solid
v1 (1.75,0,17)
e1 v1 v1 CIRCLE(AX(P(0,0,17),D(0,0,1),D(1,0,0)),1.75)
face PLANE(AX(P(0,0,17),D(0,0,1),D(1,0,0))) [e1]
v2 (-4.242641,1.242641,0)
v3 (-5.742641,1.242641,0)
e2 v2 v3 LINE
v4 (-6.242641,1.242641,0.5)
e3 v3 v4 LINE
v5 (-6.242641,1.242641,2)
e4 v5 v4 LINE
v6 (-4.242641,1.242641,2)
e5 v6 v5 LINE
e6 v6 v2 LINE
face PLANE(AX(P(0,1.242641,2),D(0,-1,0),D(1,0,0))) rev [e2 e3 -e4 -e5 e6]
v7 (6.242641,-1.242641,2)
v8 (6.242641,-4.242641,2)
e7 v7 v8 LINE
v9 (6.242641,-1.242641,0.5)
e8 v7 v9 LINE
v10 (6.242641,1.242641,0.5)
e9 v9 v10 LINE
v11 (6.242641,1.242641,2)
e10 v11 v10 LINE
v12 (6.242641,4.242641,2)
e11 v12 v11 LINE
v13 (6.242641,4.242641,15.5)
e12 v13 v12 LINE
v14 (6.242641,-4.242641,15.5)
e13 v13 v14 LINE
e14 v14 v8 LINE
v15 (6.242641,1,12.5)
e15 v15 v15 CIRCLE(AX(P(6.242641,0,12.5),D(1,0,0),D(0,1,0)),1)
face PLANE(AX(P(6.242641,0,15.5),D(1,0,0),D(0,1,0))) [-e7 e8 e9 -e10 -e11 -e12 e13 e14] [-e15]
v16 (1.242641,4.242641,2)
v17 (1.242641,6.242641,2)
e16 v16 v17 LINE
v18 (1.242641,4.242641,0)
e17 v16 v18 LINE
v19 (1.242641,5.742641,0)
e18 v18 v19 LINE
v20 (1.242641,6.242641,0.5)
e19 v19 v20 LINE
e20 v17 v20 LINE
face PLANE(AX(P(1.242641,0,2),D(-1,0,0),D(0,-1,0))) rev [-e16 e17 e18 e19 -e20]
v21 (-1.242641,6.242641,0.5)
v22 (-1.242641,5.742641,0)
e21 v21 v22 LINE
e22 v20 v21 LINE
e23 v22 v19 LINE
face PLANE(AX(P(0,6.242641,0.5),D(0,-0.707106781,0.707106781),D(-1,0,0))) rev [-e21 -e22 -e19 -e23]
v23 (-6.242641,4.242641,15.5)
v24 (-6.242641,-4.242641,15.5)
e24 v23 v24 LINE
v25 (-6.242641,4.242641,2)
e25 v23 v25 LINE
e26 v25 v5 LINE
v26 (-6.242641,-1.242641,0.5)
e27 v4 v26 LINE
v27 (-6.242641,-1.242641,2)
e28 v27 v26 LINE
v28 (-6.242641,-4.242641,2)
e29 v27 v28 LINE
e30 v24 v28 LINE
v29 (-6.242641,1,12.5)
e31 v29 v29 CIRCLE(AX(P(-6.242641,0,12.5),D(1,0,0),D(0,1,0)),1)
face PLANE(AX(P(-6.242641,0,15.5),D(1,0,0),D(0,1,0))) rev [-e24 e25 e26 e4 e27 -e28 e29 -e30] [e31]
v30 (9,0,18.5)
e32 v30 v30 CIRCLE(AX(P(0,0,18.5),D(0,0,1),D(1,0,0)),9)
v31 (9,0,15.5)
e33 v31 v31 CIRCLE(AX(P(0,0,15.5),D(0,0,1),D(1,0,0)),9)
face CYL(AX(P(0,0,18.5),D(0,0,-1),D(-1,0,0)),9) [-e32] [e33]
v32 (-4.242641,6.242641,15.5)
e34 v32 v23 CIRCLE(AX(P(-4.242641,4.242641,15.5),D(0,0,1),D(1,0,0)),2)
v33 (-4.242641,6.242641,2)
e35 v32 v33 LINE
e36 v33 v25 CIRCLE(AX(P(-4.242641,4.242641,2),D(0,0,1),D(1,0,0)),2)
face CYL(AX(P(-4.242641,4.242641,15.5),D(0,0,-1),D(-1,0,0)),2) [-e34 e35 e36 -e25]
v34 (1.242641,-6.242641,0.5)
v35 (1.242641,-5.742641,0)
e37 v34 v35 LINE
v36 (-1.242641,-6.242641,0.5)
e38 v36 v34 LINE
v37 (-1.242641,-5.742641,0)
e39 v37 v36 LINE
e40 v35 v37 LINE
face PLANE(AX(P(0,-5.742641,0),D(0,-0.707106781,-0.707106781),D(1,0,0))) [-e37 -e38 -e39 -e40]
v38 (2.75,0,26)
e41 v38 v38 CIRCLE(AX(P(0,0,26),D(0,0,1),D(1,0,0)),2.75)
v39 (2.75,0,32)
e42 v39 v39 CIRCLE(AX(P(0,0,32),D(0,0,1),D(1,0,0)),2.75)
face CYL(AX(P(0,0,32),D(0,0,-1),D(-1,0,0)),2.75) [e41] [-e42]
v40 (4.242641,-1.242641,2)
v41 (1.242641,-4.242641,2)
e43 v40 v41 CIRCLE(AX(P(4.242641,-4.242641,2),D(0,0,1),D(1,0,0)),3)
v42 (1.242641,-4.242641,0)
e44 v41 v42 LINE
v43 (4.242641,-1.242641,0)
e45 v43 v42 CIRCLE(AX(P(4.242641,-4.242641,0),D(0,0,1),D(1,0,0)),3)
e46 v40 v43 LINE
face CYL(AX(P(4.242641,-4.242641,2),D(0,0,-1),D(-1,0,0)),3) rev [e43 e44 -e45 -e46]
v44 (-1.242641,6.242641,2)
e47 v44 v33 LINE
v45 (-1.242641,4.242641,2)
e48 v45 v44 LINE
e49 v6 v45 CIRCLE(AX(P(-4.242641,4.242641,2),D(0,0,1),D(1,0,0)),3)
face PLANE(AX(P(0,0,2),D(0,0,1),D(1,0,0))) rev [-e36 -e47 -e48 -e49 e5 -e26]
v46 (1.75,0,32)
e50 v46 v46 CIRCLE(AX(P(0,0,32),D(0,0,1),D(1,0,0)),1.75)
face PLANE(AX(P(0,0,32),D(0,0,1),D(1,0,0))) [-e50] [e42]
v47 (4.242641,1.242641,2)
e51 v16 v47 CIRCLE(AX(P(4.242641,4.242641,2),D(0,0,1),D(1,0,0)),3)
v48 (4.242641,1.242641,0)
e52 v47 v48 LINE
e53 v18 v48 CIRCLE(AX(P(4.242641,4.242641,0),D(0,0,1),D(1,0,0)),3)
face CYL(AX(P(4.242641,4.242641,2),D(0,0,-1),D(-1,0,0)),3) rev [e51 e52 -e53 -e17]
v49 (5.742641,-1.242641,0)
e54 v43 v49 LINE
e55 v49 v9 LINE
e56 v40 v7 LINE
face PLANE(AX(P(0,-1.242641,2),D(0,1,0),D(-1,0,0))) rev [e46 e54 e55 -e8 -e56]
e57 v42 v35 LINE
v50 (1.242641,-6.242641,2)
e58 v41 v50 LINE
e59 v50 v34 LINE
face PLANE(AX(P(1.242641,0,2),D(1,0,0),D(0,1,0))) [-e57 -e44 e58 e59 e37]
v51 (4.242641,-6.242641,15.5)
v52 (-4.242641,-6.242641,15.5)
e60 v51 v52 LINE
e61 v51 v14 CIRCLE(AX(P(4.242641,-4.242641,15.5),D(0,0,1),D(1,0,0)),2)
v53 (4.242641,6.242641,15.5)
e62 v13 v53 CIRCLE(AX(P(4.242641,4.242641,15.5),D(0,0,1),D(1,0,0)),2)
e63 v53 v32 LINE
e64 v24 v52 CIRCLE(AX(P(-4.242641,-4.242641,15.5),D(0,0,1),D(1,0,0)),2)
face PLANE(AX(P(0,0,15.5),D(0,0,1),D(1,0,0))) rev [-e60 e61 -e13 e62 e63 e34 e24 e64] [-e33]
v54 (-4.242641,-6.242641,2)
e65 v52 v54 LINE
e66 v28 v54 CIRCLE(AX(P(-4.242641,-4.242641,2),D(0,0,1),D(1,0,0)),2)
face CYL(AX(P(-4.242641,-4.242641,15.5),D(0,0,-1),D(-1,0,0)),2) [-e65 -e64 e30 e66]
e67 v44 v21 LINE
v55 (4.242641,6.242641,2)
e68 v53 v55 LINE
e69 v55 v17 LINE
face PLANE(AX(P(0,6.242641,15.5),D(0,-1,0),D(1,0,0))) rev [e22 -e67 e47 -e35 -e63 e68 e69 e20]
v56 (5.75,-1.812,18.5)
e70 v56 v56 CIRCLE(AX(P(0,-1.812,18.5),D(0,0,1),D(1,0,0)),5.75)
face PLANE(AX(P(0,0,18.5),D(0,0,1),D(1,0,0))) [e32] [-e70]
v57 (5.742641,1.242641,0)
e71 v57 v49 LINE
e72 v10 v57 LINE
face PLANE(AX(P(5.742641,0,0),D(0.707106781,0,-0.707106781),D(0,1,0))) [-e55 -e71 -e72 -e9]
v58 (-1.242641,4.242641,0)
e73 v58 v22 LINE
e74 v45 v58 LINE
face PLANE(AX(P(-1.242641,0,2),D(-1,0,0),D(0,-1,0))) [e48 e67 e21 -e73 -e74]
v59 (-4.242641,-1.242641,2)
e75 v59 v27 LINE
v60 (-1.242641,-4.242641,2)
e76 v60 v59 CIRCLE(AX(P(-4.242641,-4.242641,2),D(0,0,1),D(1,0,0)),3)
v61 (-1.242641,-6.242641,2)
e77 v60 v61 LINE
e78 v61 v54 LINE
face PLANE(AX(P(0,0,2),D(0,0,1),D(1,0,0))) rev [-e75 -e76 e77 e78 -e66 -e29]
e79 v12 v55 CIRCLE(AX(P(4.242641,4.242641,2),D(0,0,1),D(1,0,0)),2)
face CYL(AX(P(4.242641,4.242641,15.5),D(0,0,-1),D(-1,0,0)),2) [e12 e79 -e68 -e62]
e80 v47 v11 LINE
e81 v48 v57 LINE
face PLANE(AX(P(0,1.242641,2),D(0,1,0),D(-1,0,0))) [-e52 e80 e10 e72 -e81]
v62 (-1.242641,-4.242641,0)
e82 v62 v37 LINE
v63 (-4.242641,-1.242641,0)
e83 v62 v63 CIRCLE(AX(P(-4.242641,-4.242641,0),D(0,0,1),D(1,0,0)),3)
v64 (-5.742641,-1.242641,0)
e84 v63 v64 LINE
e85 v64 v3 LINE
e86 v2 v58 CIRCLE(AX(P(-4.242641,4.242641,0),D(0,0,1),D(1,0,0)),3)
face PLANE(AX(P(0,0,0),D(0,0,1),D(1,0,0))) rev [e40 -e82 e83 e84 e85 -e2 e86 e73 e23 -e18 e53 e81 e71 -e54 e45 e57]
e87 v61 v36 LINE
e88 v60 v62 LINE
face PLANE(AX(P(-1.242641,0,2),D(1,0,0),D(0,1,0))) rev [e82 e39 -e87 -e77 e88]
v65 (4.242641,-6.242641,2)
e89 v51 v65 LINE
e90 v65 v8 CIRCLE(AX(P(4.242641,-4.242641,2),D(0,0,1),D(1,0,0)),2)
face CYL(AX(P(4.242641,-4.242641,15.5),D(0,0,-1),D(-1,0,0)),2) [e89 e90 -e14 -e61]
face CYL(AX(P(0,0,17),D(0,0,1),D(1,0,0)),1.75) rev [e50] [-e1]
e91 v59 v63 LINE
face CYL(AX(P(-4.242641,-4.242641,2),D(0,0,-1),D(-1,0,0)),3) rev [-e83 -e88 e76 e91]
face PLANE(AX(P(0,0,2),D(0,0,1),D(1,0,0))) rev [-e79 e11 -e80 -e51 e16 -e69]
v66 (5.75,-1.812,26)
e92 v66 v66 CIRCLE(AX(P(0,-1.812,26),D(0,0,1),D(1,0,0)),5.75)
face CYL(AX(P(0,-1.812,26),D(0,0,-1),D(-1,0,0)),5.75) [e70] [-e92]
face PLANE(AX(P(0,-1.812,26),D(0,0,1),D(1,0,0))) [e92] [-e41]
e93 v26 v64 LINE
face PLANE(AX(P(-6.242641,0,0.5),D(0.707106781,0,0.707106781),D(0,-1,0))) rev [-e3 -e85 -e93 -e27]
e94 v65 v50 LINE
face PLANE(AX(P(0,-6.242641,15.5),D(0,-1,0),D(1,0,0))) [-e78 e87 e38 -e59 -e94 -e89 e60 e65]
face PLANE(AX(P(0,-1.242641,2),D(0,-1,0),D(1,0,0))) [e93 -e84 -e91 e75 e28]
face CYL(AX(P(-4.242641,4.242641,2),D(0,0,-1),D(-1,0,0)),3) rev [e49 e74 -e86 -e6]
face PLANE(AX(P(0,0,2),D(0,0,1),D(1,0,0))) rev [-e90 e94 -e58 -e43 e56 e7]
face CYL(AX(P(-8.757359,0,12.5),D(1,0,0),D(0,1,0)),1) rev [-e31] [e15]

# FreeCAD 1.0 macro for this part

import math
import FreeCAD as App
import Part
import Sketcher

V = App.Vector
Q = App.Units.Quantity


def edges_at(feature, points):
    """Names of the edges that pass closest to the given points."""
    edges = feature.Shape.Edges
    near = lambda p: min(range(len(edges)), key=lambda i: edges[i].distToShape(Part.Vertex(*p))[0])
    return sorted({f"Edge{near(p) + 1}" for p in points})

doc = App.newDocument("Part")
body = doc.addObject("PartDesign::Body", "Body")

# Sketch on XY plane
sketch1 = body.newObject("Sketcher::SketchObject", "Sketch")
sketch1.AttachmentSupport = (doc.getObject("XY_Plane"), [""])
sketch1.MapMode = "FlatFace"
sketch1.AttachmentOffset = App.Placement(V(0, 0, 15.5), App.Rotation())
sketch1.addGeometry(Part.Circle(V(0, 0, 0), V(0, 0, 1), 9), False)
sketch1.addConstraint([
    Sketcher.Constraint("Coincident", 0, 3, -1, 1),
    Sketcher.Constraint("Diameter", 0, Q("18 mm")),
])
pad1 = body.newObject("PartDesign::Pad", "Pad")
pad1.Profile = sketch1
pad1.Length = 3

# Sketch on XY plane
sketch2 = body.newObject("Sketcher::SketchObject", "Sketch001")
sketch2.AttachmentSupport = (doc.getObject("XY_Plane"), [""])
sketch2.MapMode = "FlatFace"
sketch2.AttachmentOffset = App.Placement(V(0, 0, 18.5), App.Rotation())
sketch2.addGeometry(Part.Circle(V(0, -2, 0), V(0, 0, 1), 6), False)
sketch2.addConstraint([
    Sketcher.Constraint("PointOnObject", 0, 3, -2),
    Sketcher.Constraint("Diameter", 0, Q("11.5 mm")),
    Sketcher.Constraint("DistanceY", 0, 3, -1, 1, Q("1.812 mm")),
])
pad2 = body.newObject("PartDesign::Pad", "Pad001")
pad2.Profile = sketch2
pad2.Length = 7.5

# Sketch on XY plane
sketch3 = body.newObject("Sketcher::SketchObject", "Sketch002")
sketch3.AttachmentSupport = (doc.getObject("XY_Plane"), [""])
sketch3.MapMode = "FlatFace"
sketch3.AttachmentOffset = App.Placement(V(0, 0, 26), App.Rotation())
sketch3.addGeometry(Part.Circle(V(0, 0, 0), V(0, 0, 1), 2.8), False)
sketch3.addConstraint([
    Sketcher.Constraint("Coincident", 0, 3, -1, 1),
    Sketcher.Constraint("Diameter", 0, Q("5.5 mm")),
])
pad3 = body.newObject("PartDesign::Pad", "Pad002")
pad3.Profile = sketch3
pad3.Length = 6
body2 = doc.addObject("PartDesign::Body", "Body001")

# Sketch on XY plane
sketch4 = body2.newObject("Sketcher::SketchObject", "Sketch003")
sketch4.AttachmentSupport = (doc.getObject("XY_Plane001"), [""])
sketch4.MapMode = "FlatFace"
sketch4.addGeometry([
    Part.LineSegment(V(1.2, 4.2, 0), V(1.2, 6.2, 0)),  # 0
    Part.LineSegment(V(1.2, 6.2, 0), V(-1.2, 6.2, 0)),  # 1
    Part.LineSegment(V(-1.2, 6.2, 0), V(-1.2, 4.2, 0)),  # 2
    Part.ArcOfCircle(Part.Circle(V(-4.2, 4.2, 0), V(0, 0, 1), 3), math.radians(-90), math.radians(0)),  # 3
    Part.LineSegment(V(-4.2, 1.2, 0), V(-6.2, 1.2, 0)),  # 4
    Part.LineSegment(V(-6.2, 1.2, 0), V(-6.2, -1.2, 0)),  # 5
    Part.LineSegment(V(-6.2, -1.2, 0), V(-4.2, -1.2, 0)),  # 6
    Part.ArcOfCircle(Part.Circle(V(-4.2, -4.2, 0), V(0, 0, 1), 3), math.radians(0), math.radians(90)),  # 7
    Part.LineSegment(V(-1.2, -4.2, 0), V(-1.2, -6.2, 0)),  # 8
    Part.LineSegment(V(-1.2, -6.2, 0), V(1.2, -6.2, 0)),  # 9
    Part.LineSegment(V(1.2, -6.2, 0), V(1.2, -4.2, 0)),  # 10
    Part.ArcOfCircle(Part.Circle(V(4.2, -4.2, 0), V(0, 0, 1), 3), math.radians(90), math.radians(180)),  # 11
    Part.LineSegment(V(4.2, -1.2, 0), V(6.2, -1.2, 0)),  # 12
    Part.LineSegment(V(6.2, -1.2, 0), V(6.2, 1.2, 0)),  # 13
    Part.LineSegment(V(6.2, 1.2, 0), V(4.2, 1.2, 0)),  # 14
    Part.ArcOfCircle(Part.Circle(V(4.2, 4.2, 0), V(0, 0, 1), 3), math.radians(180), math.radians(270)),  # 15
], False)
sketch4.addConstraint([
    Sketcher.Constraint("Coincident", 0, 2, 1, 1),
    Sketcher.Constraint("Coincident", 1, 2, 2, 1),
    Sketcher.Constraint("Tangent", 2, 2, 3, 2),
    Sketcher.Constraint("Tangent", 3, 1, 4, 1),
    Sketcher.Constraint("Coincident", 4, 2, 5, 1),
    Sketcher.Constraint("Coincident", 5, 2, 6, 1),
    Sketcher.Constraint("Tangent", 6, 2, 7, 2),
    Sketcher.Constraint("Tangent", 7, 1, 8, 1),
    Sketcher.Constraint("Coincident", 8, 2, 9, 1),
    Sketcher.Constraint("Coincident", 9, 2, 10, 1),
    Sketcher.Constraint("Tangent", 10, 2, 11, 2),
    Sketcher.Constraint("Tangent", 11, 1, 12, 1),
    Sketcher.Constraint("Coincident", 12, 2, 13, 1),
    Sketcher.Constraint("Coincident", 13, 2, 14, 1),
    Sketcher.Constraint("Tangent", 14, 2, 15, 2),
    Sketcher.Constraint("Tangent", 15, 1, 0, 1),
    Sketcher.Constraint("Vertical", 0),
    Sketcher.Constraint("Horizontal", 1),
    Sketcher.Constraint("Vertical", 2),
    Sketcher.Constraint("Horizontal", 4),
    Sketcher.Constraint("Vertical", 5),
    Sketcher.Constraint("Horizontal", 6),
    Sketcher.Constraint("Vertical", 8),
    Sketcher.Constraint("Horizontal", 9),
    Sketcher.Constraint("Vertical", 10),
    Sketcher.Constraint("Horizontal", 12),
    Sketcher.Constraint("Vertical", 13),
    Sketcher.Constraint("Horizontal", 14),
    Sketcher.Constraint("Equal", 3, 7),
    Sketcher.Constraint("Equal", 7, 11),
    Sketcher.Constraint("Equal", 11, 15),
    Sketcher.Constraint("Symmetric", 3, 3, 11, 3, -1, 1),
    Sketcher.Constraint("Symmetric", 7, 3, 15, 3, -1, 1),
    Sketcher.Constraint("Symmetric", 7, 3, 11, 3, -2),
    Sketcher.Constraint("Equal", 6, 12),
    Sketcher.Constraint("Equal", 14, 0),
    Sketcher.Constraint("Equal", 9, 5),
    Sketcher.Constraint("Equal", 2, 8),
    Sketcher.Constraint("Radius", 3, Q("3 mm")),
    Sketcher.Constraint("DistanceX", 4, 2, 4, 1, Q("2 mm")),
    Sketcher.Constraint("DistanceX", 1, 2, 1, 1, Q("2.485281 mm")),
])
pad4 = body2.newObject("PartDesign::Pad", "Pad003")
pad4.Profile = sketch4
pad4.Length = 2
body.AllowCompound = True
doc.recompute()

boolean = body.newObject("PartDesign::Boolean", "Boolean")
boolean.Type = "Fuse"
boolean.addObjects([body2])

# Sketch on XY plane
sketch5 = body.newObject("Sketcher::SketchObject", "Sketch004")
sketch5.AttachmentSupport = (doc.getObject("XY_Plane"), [""])
sketch5.MapMode = "FlatFace"
sketch5.AttachmentOffset = App.Placement(V(0, 0, 2), App.Rotation())
sketch5.addGeometry([
    Part.ArcOfCircle(Part.Circle(V(-4.2, -4.2, 0), V(0, 0, 1), 2), math.radians(180), math.radians(270)),  # 0
    Part.LineSegment(V(-4.2, -6.2, 0), V(2.2, -6.2, 0)),  # 1
    Part.LineSegment(V(2.2, -6.2, 0), V(4.2, -6.2, 0)),  # 2
    Part.ArcOfCircle(Part.Circle(V(4.2, -4.2, 0), V(0, 0, 1), 2), math.radians(-90), math.radians(0)),  # 3
    Part.LineSegment(V(6.2, -4.2, 0), V(6.2, 2.2, 0)),  # 4
    Part.LineSegment(V(6.2, 2.2, 0), V(6.2, 4.2, 0)),  # 5
    Part.ArcOfCircle(Part.Circle(V(4.2, 4.2, 0), V(0, 0, 1), 2), math.radians(0), math.radians(90)),  # 6
    Part.LineSegment(V(4.2, 6.2, 0), V(-4.2, 6.2, 0)),  # 7
    Part.ArcOfCircle(Part.Circle(V(-4.2, 4.2, 0), V(0, 0, 1), 2), math.radians(90), math.radians(180)),  # 8
    Part.LineSegment(V(-6.2, 4.2, 0), V(-6.2, -4.2, 0)),  # 9
], False)
sketch5.addConstraint([
    Sketcher.Constraint("Tangent", 0, 2, 1, 1),
    Sketcher.Constraint("Coincident", 1, 2, 2, 1),
    Sketcher.Constraint("Tangent", 2, 2, 3, 1),
    Sketcher.Constraint("Tangent", 3, 2, 4, 1),
    Sketcher.Constraint("Coincident", 4, 2, 5, 1),
    Sketcher.Constraint("Tangent", 5, 2, 6, 1),
    Sketcher.Constraint("Tangent", 6, 2, 7, 1),
    Sketcher.Constraint("Tangent", 7, 2, 8, 1),
    Sketcher.Constraint("Tangent", 8, 2, 9, 1),
    Sketcher.Constraint("Tangent", 9, 2, 0, 1),
    Sketcher.Constraint("Horizontal", 1),
    Sketcher.Constraint("Horizontal", 2),
    Sketcher.Constraint("Vertical", 4),
    Sketcher.Constraint("Vertical", 5),
    Sketcher.Constraint("Horizontal", 7),
    Sketcher.Constraint("Vertical", 9),
    Sketcher.Constraint("Equal", 0, 3),
    Sketcher.Constraint("Equal", 3, 6),
    Sketcher.Constraint("Equal", 6, 8),
    Sketcher.Constraint("Symmetric", 0, 3, 6, 3, -1, 1),
    Sketcher.Constraint("Equal", 1, 4),
    Sketcher.Constraint("Equal", 2, 5),
    Sketcher.Constraint("Radius", 0, Q("2 mm")),
    Sketcher.Constraint("DistanceX", 2, 1, 2, 2, Q("2 mm")),
    Sketcher.Constraint("DistanceX", 1, 1, 1, 2, Q("6.485281 mm")),
])
pad5 = body.newObject("PartDesign::Pad", "Pad004")
pad5.Profile = sketch5
pad5.Length = 13.5

# Sketch on YZ plane
sketch6 = body.newObject("Sketcher::SketchObject", "Sketch005")
sketch6.AttachmentSupport = (doc.getObject("YZ_Plane"), [""])
sketch6.MapMode = "FlatFace"
sketch6.AttachmentOffset = App.Placement(V(0, 0, 6.242641), App.Rotation())
sketch6.addGeometry(Part.Circle(V(0, 12.5, 0), V(0, 0, 1), 1), False)
sketch6.addConstraint([
    Sketcher.Constraint("PointOnObject", 0, 3, -2),
    Sketcher.Constraint("Diameter", 0, Q("2 mm")),
    Sketcher.Constraint("DistanceY", -1, 1, 0, 3, Q("12.5 mm")),
])
pocket1 = body.newObject("PartDesign::Pocket", "Pocket")
pocket1.Profile = sketch6
pocket1.Length = 15
doc.recompute()

chamfer = body.newObject("PartDesign::Chamfer", "Chamfer")
chamfer.Base = (pocket1, edges_at(pocket1, [
    (-6.243, 0, 0),
    (0, 6.243, 0),
    (6.243, 0, 0),
    (0, -6.243, 0),
]))
chamfer.Size = 0.5

# Sketch on XY plane
sketch7 = body.newObject("Sketcher::SketchObject", "Sketch006")
sketch7.AttachmentSupport = (doc.getObject("XY_Plane"), [""])
sketch7.MapMode = "FlatFace"
sketch7.AttachmentOffset = App.Placement(V(0, 0, 32), App.Rotation())
sketch7.addGeometry(Part.Circle(V(0, 0, 0), V(0, 0, 1), 1.8), False)
sketch7.addConstraint([
    Sketcher.Constraint("Coincident", 0, 3, -1, 1),
    Sketcher.Constraint("Diameter", 0, Q("3.5 mm")),
])
pocket2 = body.newObject("PartDesign::Pocket", "Pocket001")
pocket2.Profile = sketch7
pocket2.Length = 15

doc.recompute()
